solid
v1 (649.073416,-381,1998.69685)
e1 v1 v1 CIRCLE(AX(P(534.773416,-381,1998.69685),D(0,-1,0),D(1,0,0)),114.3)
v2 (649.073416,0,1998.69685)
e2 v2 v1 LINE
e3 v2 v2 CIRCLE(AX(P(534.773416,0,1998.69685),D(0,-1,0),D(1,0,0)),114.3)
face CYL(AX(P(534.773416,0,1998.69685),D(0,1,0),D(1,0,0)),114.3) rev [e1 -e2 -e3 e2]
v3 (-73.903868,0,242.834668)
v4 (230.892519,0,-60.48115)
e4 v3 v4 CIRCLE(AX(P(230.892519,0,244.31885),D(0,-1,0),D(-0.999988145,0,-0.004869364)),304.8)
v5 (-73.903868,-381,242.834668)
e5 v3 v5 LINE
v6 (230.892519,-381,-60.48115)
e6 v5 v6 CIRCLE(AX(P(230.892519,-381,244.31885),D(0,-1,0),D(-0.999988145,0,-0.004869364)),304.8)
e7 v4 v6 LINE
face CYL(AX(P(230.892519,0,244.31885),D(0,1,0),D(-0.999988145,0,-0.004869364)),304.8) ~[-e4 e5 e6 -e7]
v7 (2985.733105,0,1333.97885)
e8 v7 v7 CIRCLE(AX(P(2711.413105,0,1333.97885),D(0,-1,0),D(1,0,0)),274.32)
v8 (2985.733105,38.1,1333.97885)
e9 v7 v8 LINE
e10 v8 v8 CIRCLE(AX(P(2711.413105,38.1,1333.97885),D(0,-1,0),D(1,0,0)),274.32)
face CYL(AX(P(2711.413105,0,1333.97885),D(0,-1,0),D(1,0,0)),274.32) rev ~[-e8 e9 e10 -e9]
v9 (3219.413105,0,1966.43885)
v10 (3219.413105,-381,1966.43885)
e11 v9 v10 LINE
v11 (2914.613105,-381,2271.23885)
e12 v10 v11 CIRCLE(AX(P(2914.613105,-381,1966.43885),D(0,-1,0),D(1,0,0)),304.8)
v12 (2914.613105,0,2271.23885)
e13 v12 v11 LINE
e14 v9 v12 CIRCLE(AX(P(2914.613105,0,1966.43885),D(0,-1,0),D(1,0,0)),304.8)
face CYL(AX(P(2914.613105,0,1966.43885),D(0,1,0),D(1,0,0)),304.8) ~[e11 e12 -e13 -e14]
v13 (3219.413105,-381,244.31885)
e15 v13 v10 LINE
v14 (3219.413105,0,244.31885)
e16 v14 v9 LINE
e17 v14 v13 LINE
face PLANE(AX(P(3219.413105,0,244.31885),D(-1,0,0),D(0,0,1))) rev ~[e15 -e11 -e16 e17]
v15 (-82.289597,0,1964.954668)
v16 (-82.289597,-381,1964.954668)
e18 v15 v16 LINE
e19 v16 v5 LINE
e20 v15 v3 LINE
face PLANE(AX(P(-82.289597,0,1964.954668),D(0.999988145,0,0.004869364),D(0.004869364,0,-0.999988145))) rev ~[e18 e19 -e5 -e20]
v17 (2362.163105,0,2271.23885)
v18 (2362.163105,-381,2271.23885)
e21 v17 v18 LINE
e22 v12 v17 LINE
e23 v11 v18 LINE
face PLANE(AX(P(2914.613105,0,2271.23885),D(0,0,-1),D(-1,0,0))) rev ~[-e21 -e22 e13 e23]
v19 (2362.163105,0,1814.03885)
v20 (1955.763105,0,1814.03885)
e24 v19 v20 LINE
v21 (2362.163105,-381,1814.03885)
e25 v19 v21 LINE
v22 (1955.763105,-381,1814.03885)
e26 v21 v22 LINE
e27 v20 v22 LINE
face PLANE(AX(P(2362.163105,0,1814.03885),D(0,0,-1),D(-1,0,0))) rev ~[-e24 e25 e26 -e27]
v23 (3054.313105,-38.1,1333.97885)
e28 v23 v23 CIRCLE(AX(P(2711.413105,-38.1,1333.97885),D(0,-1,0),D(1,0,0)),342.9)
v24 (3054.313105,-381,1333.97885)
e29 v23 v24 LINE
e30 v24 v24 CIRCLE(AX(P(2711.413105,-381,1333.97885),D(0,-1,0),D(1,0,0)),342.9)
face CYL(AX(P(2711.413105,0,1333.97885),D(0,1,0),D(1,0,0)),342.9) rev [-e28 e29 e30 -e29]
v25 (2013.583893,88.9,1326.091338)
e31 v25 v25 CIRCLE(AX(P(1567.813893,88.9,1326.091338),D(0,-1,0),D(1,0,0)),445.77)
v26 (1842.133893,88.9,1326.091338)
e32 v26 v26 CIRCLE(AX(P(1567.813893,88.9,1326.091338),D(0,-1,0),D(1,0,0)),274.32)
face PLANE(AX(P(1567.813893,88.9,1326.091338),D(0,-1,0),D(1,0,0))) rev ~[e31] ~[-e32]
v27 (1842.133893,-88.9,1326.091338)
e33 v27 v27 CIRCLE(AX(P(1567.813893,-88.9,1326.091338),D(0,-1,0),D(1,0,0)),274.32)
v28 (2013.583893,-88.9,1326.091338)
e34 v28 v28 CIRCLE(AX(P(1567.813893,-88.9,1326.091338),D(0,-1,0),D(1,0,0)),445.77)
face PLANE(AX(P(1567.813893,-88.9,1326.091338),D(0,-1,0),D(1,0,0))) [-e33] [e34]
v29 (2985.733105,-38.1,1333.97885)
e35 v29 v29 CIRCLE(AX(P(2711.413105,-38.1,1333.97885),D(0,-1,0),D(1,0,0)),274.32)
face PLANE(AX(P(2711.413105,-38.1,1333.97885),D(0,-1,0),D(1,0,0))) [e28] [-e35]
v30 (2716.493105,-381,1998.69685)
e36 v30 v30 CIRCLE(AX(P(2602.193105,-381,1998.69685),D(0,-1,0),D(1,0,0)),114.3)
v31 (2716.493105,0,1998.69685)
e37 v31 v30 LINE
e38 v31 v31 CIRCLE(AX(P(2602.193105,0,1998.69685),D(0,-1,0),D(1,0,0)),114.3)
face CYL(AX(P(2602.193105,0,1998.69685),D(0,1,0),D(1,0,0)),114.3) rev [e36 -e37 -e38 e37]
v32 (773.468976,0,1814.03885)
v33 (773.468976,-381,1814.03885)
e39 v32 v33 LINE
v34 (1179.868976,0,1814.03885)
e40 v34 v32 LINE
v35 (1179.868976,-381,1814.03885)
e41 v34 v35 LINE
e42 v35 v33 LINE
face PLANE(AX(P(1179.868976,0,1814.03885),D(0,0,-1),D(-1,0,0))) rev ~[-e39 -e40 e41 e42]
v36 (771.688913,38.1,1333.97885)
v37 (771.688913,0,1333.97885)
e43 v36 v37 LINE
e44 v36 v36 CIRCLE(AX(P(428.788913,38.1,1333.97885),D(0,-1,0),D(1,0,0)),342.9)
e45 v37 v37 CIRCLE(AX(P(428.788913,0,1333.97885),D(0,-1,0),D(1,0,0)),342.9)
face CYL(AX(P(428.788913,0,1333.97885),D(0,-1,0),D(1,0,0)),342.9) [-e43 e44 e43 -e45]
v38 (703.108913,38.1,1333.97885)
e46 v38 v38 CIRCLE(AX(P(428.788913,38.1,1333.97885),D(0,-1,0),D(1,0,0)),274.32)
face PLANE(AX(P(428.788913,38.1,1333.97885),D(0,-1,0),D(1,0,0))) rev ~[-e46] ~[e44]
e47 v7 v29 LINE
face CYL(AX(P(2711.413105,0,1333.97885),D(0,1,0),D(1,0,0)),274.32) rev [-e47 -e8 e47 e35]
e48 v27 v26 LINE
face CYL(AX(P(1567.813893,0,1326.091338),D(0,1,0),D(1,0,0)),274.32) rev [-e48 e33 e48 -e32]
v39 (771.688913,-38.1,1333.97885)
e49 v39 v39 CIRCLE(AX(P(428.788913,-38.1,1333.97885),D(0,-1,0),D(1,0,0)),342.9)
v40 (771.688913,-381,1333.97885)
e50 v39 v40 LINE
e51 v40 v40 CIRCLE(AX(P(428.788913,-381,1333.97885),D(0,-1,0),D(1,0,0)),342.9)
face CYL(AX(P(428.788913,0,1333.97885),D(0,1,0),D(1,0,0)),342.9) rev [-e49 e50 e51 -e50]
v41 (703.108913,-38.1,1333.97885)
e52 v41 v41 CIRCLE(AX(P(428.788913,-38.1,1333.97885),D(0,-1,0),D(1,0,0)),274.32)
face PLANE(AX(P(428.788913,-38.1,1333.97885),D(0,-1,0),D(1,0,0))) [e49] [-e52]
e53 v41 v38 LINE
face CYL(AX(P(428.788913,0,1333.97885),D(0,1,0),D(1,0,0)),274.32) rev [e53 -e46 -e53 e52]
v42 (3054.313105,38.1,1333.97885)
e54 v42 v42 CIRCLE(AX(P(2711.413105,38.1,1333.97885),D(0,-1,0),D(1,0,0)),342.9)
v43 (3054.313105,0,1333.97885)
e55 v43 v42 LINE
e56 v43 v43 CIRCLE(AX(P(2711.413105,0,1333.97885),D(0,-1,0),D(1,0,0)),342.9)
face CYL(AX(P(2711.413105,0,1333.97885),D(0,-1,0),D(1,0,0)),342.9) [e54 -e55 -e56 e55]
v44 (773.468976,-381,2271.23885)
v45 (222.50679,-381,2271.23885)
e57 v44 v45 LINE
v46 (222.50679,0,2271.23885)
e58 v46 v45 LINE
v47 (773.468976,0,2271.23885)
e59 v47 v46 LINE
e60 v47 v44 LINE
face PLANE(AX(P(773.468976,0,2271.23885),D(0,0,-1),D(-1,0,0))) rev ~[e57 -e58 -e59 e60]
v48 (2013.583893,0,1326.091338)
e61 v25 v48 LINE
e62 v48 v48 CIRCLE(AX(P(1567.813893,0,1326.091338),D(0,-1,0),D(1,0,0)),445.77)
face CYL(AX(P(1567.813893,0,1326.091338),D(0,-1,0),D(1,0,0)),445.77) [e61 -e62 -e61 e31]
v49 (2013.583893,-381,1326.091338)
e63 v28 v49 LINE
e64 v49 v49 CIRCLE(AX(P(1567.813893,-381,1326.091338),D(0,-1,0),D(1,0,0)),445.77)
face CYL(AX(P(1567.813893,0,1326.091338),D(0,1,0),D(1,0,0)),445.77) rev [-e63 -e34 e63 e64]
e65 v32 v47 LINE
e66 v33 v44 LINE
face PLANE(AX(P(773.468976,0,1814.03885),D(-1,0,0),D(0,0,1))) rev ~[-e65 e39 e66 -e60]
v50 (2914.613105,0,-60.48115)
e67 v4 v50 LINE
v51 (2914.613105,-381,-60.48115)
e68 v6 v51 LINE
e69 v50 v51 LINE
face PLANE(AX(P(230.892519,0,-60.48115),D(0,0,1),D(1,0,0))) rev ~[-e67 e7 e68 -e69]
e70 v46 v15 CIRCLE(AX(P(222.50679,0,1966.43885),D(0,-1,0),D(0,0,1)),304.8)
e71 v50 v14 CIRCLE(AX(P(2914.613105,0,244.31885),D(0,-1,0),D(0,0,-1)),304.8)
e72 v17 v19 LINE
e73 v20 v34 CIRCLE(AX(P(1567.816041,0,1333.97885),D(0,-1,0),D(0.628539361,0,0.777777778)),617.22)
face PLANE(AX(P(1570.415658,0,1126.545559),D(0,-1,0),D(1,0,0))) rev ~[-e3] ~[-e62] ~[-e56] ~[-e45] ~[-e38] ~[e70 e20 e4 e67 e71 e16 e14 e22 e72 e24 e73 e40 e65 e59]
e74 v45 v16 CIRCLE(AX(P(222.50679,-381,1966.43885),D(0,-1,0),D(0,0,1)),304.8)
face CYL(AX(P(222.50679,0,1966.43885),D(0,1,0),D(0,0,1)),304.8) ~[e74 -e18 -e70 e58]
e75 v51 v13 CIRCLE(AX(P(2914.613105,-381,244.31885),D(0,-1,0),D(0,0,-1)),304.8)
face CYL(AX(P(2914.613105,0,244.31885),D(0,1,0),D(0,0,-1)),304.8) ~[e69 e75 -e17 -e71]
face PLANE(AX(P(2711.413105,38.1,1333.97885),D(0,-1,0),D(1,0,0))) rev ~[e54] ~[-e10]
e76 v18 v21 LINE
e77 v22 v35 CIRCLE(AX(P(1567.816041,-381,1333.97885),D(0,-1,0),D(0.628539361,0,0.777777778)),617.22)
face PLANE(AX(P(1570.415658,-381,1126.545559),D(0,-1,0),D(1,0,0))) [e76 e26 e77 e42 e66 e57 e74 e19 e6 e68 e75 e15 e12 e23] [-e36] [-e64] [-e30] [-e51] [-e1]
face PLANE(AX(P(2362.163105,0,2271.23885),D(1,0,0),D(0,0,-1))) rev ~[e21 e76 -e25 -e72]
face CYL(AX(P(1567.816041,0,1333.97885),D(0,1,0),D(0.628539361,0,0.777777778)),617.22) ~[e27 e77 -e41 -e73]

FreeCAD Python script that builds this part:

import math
import FreeCAD as App
import Part
import Sketcher
Q = App.Units.Quantity

doc = App.newDocument("Part")
body = doc.addObject("PartDesign::Body", "Body")

# Sketch on XZ plane
sketch1 = doc.addObject("Sketcher::SketchObject", "Sketch")
body.addObject(sketch1)
sketch1.AttachmentSupport = (doc.XZ_Plane, [""])
sketch1.MapMode = "FlatFace"
sketch1.addGeometry(Part.ArcOfCircle(Part.Circle(App.Vector(230.892519, 244.31885, 0), App.Vector(0, 0, 1), 304.8), math.radians(-179.721005), math.radians(-90)), False)
sketch1.addGeometry(Part.LineSegment(App.Vector(230.892519, -60.48115, 0), App.Vector(2914.613105, -60.48115, 0)), False)
sketch1.addGeometry(Part.ArcOfCircle(Part.Circle(App.Vector(2914.613105, 244.31885, 0), App.Vector(0, 0, 1), 304.8), math.radians(-90), math.radians(0)), False)
sketch1.addGeometry(Part.LineSegment(App.Vector(3219.413105, 244.31885, 0), App.Vector(3219.413105, 1966.43885, 0)), False)
sketch1.addGeometry(Part.ArcOfCircle(Part.Circle(App.Vector(2914.613105, 1966.43885, 0), App.Vector(0, 0, 1), 304.8), math.radians(0), math.radians(90)), False)
sketch1.addGeometry(Part.LineSegment(App.Vector(2914.613105, 2271.23885, 0), App.Vector(2362.163105, 2271.23885, 0)), False)
sketch1.addGeometry(Part.LineSegment(App.Vector(2362.163105, 2271.23885, 0), App.Vector(2362.163105, 1814.03885, 0)), False)
sketch1.addGeometry(Part.LineSegment(App.Vector(2362.163105, 1814.03885, 0), App.Vector(1955.763105, 1814.03885, 0)), False)
sketch1.addGeometry(Part.ArcOfCircle(Part.Circle(App.Vector(1567.816041, 1333.97885, 0), App.Vector(0, 0, 1), 617.22), math.radians(51.057559), math.radians(128.942441)), False)
sketch1.addGeometry(Part.LineSegment(App.Vector(1179.868976, 1814.03885, 0), App.Vector(773.468976, 1814.03885, 0)), False)
sketch1.addGeometry(Part.LineSegment(App.Vector(773.468976, 1814.03885, 0), App.Vector(773.468976, 2271.23885, 0)), False)
sketch1.addGeometry(Part.LineSegment(App.Vector(773.468976, 2271.23885, 0), App.Vector(222.50679, 2271.23885, 0)), False)
sketch1.addGeometry(Part.ArcOfCircle(Part.Circle(App.Vector(222.50679, 1966.43885, 0), App.Vector(0, 0, 1), 304.8), math.radians(90), math.radians(180.278995)), False)
sketch1.addGeometry(Part.LineSegment(App.Vector(-82.289597, 1964.954668, 0), App.Vector(-73.903868, 242.834668, 0)), False)
sketch1.addGeometry(Part.Circle(App.Vector(428.788913, 1333.97885, 0), App.Vector(0, 0, 1), 342.9), False)
sketch1.addGeometry(Part.Circle(App.Vector(1567.813893, 1326.091338, 0), App.Vector(0, 0, 1), 445.77), False)
sketch1.addGeometry(Part.Circle(App.Vector(2711.413105, 1333.97885, 0), App.Vector(0, 0, 1), 342.9), False)
sketch1.addGeometry(Part.Circle(App.Vector(534.773416, 1998.69685, 0), App.Vector(0, 0, 1), 114.3), False)
sketch1.addGeometry(Part.Circle(App.Vector(2602.193105, 1998.69685, 0), App.Vector(0, 0, 1), 114.3), False)
sketch1.addConstraint(Sketcher.Constraint("Tangent", 0, 2, 1, 1))
sketch1.addConstraint(Sketcher.Constraint("Tangent", 1, 2, 2, 1))
sketch1.addConstraint(Sketcher.Constraint("Tangent", 2, 2, 3, 1))
sketch1.addConstraint(Sketcher.Constraint("Tangent", 3, 2, 4, 1))
sketch1.addConstraint(Sketcher.Constraint("Tangent", 4, 2, 5, 1))
sketch1.addConstraint(Sketcher.Constraint("Coincident", 5, 2, 6, 1))
sketch1.addConstraint(Sketcher.Constraint("Coincident", 6, 2, 7, 1))
sketch1.addConstraint(Sketcher.Constraint("Coincident", 7, 2, 8, 1))
sketch1.addConstraint(Sketcher.Constraint("Coincident", 8, 2, 9, 1))
sketch1.addConstraint(Sketcher.Constraint("Coincident", 9, 2, 10, 1))
sketch1.addConstraint(Sketcher.Constraint("Coincident", 10, 2, 11, 1))
sketch1.addConstraint(Sketcher.Constraint("Tangent", 11, 2, 12, 1))
sketch1.addConstraint(Sketcher.Constraint("Tangent", 12, 2, 13, 1))
sketch1.addConstraint(Sketcher.Constraint("Tangent", 13, 2, 0, 1))
sketch1.addConstraint(Sketcher.Constraint("Horizontal", 1))
sketch1.addConstraint(Sketcher.Constraint("Vertical", 3))
sketch1.addConstraint(Sketcher.Constraint("Horizontal", 5))
sketch1.addConstraint(Sketcher.Constraint("Vertical", 6))
sketch1.addConstraint(Sketcher.Constraint("Horizontal", 7))
sketch1.addConstraint(Sketcher.Constraint("Horizontal", 9))
sketch1.addConstraint(Sketcher.Constraint("Vertical", 10))
sketch1.addConstraint(Sketcher.Constraint("Horizontal", 11))
sketch1.addConstraint(Sketcher.Constraint("Equal", 0, 2))
sketch1.addConstraint(Sketcher.Constraint("Equal", 2, 4))
sketch1.addConstraint(Sketcher.Constraint("Equal", 4, 12))
sketch1.addConstraint(Sketcher.Constraint("Equal", 14, 16))
sketch1.addConstraint(Sketcher.Constraint("Equal", 17, 18))
sketch1.addConstraint(Sketcher.Constraint("Horizontal", 4, 3, 12, 3))
sketch1.addConstraint(Sketcher.Constraint("Horizontal", 8, 3, 14, 3))
sketch1.addConstraint(Sketcher.Constraint("Horizontal", 14, 3, 16, 3))
sketch1.addConstraint(Sketcher.Constraint("Horizontal", 17, 3, 18, 3))
sketch1.addConstraint(Sketcher.Constraint("Equal", 7, 9))
sketch1.addConstraint(Sketcher.Constraint("Equal", 6, 10))
sketch1.addConstraint(Sketcher.Constraint("Diameter", 14, Q("27 in")))
sketch1.addConstraint(Sketcher.Constraint("Diameter", 17, Q("9 in")))
sketch1.addConstraint(Sketcher.Constraint("Radius", 0, Q("12 in")))
sketch1.addConstraint(Sketcher.Constraint("Diameter", 15, Q("35.1 in")))
sketch1.addConstraint(Sketcher.Constraint("Radius", 8, Q("24.3 in")))
sketch1.addConstraint(Sketcher.Constraint("DistanceX", 7, 2, 7, 1, Q("16 in")))
sketch1.addConstraint(Sketcher.Constraint("DistanceY", 6, 2, 6, 1, Q("18 in")))
sketch1.addConstraint(Sketcher.Constraint("DistanceY", 3, 1, 3, 2, Q("67.8 in")))
sketch1.addConstraint(Sketcher.Constraint("DistanceX", 16, 3, 4, 3, Q("8 in")))
sketch1.addConstraint(Sketcher.Constraint("DistanceX", 5, 2, 5, 1, Q("21.75 in")))
sketch1.addConstraint(Sketcher.Constraint("DistanceY", 8, 3, 4, 3, Q("24.9 in")))
sketch1.addConstraint(Sketcher.Constraint("DistanceX", 18, 3, 4, 3, Q("12.3 in")))
sketch1.addConstraint(Sketcher.Constraint("DistanceY", 12, 3, 17, 3, Q("1.27 in")))
sketch1.addConstraint(Sketcher.Constraint("DistanceX", 1, 1, 1, 2, 2683.720586))
sketch1.addConstraint(Sketcher.Constraint("DistanceX", 11, 2, 11, 1, 550.962187))
sketch1.addConstraint(Sketcher.Constraint("DistanceX", -1, 1, 0, 3, 230.892519))
sketch1.addConstraint(Sketcher.Constraint("DistanceY", -1, 1, 0, 3, 244.31885))
sketch1.addConstraint(Sketcher.Constraint("DistanceX", 14, 3, 4, 3, 2485.824192))
sketch1.addConstraint(Sketcher.Constraint("DistanceX", 14, 3, 15, 3, 1139.02498))
sketch1.addConstraint(Sketcher.Constraint("DistanceX", 17, 3, 8, 2, 645.09556))
sketch1.addConstraint(Sketcher.Constraint("DistanceY", -1, 1, 15, 3, 1326.091338))
pad1 = doc.addObject("PartDesign::Pad", "Pad")
body.addObject(pad1)
pad1.Profile = sketch1
pad1.Length = Q("15 in")

# Sketch on XZ plane
sketch2 = doc.addObject("Sketcher::SketchObject", "Sketch001")
body.addObject(sketch2)
sketch2.AttachmentSupport = (doc.XZ_Plane, [""])
sketch2.MapMode = "FlatFace"
sketch2.addGeometry(Part.Circle(App.Vector(1567.813893, 1326.091338, 0), App.Vector(0, 0, 1), 445.77), False)
sketch2.addGeometry(Part.Circle(App.Vector(1567.813893, 1326.091338, 0), App.Vector(0, 0, 1), 274.32), False)
sketch2.addConstraint(Sketcher.Constraint("Coincident", 1, 3, 0, 3))
sketch2.addConstraint(Sketcher.Constraint("Diameter", 0, Q("35.1 in")))
sketch2.addConstraint(Sketcher.Constraint("Diameter", 1, Q("21.6 in")))
sketch2.addConstraint(Sketcher.Constraint("DistanceX", -1, 1, 0, 3, 1567.813893))
sketch2.addConstraint(Sketcher.Constraint("DistanceY", -1, 1, 0, 3, 1326.091338))
pad2 = doc.addObject("PartDesign::Pad", "Pad001")
body.addObject(pad2)
pad2.Profile = sketch2
pad2.Length = Q("7 in")
pad2.Midplane = True

# Sketch on XZ plane
sketch3 = doc.addObject("Sketcher::SketchObject", "Sketch002")
body.addObject(sketch3)
sketch3.AttachmentSupport = (doc.XZ_Plane, [""])
sketch3.MapMode = "FlatFace"
sketch3.addGeometry(Part.Circle(App.Vector(2711.413105, 1333.97885, 0), App.Vector(0, 0, 1), 342.9), False)
sketch3.addGeometry(Part.Circle(App.Vector(2711.413105, 1333.97885, 0), App.Vector(0, 0, 1), 274.32), False)
sketch3.addGeometry(Part.Circle(App.Vector(428.788913, 1333.97885, 0), App.Vector(0, 0, 1), 342.9), False)
sketch3.addGeometry(Part.Circle(App.Vector(428.788913, 1333.97885, 0), App.Vector(0, 0, 1), 274.32), False)
sketch3.addConstraint(Sketcher.Constraint("Coincident", 1, 3, 0, 3))
sketch3.addConstraint(Sketcher.Constraint("Coincident", 3, 3, 2, 3))
sketch3.addConstraint(Sketcher.Constraint("Equal", 0, 2))
sketch3.addConstraint(Sketcher.Constraint("Equal", 1, 3))
sketch3.addConstraint(Sketcher.Constraint("Horizontal", 1, 3, 2, 3))
sketch3.addConstraint(Sketcher.Constraint("Diameter", 0, Q("27 in")))
sketch3.addConstraint(Sketcher.Constraint("Diameter", 1, Q("21.6 in")))
sketch3.addConstraint(Sketcher.Constraint("DistanceY", -1, 1, 0, 3, 1333.97885))
sketch3.addConstraint(Sketcher.Constraint("DistanceX", 2, 3, 0, 3, 2282.624192))
sketch3.addConstraint(Sketcher.Constraint("DistanceX", -1, 1, 0, 3, 2711.413105))
pad3 = doc.addObject("PartDesign::Pad", "Pad002")
body.addObject(pad3)
pad3.Profile = sketch3
pad3.Length = Q("3 in")
pad3.Midplane = True

doc.recompute()
